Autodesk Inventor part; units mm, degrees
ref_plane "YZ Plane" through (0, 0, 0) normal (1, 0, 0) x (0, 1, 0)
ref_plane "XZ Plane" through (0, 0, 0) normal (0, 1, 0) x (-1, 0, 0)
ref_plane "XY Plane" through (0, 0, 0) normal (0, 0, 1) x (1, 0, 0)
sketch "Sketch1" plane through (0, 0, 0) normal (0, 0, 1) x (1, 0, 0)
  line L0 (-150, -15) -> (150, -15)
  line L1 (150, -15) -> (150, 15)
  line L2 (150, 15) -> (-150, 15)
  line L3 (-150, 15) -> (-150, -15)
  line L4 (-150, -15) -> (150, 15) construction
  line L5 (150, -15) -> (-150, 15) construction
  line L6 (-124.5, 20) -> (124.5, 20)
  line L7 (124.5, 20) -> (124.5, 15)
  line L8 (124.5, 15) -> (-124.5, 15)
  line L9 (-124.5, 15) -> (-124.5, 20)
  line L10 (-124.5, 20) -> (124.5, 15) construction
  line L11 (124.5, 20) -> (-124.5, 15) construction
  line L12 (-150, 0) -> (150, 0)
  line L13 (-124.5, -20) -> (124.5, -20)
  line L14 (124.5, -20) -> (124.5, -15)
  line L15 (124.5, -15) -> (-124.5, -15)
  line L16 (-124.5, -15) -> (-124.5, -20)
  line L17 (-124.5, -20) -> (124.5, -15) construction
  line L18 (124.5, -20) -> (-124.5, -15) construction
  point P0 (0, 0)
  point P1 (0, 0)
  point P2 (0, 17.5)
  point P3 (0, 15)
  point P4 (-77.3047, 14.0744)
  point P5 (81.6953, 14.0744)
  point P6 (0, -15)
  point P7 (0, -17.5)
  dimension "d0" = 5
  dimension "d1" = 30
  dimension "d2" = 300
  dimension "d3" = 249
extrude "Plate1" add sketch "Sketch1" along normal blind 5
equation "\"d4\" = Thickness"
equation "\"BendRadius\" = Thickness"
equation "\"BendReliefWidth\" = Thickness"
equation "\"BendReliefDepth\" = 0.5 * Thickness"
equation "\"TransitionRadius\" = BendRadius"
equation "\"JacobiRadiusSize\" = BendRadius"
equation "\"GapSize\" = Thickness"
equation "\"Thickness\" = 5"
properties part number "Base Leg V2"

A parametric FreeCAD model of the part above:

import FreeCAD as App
import Part
import Sketcher
Q = App.Units.Quantity


def add_polygon(sketch, points):
    """Adds a closed chain of lines whose ends are joined by coincident constraints."""
    first, n = sketch.GeometryCount, len(points)
    for a, b in zip(points, points[1:] + points[:1]):
        sketch.addGeometry(Part.LineSegment(App.Vector(*a, 0), App.Vector(*b, 0)), False)
    for i in range(n):
        sketch.addConstraint(Sketcher.Constraint("Coincident", first + i, 2, first + (i + 1) % n, 1))

doc = App.newDocument("Part")
params = doc.addObject("Spreadsheet::Sheet", "Params")
for row, (alias, value) in enumerate([
    ("sketch1_width", "249 mm"),
    ("sketch1_height", "5 mm"),
    ("sketch1_height2", "30 mm"),
    ("sketch1_width2", "25.5 mm"),
    ("pad1_length", "5 mm"),
], start=1):
    params.set(f"A{row}", alias)
    params.set(f"B{row}", "=" + value)
    params.setAlias(f"B{row}", alias)

body = doc.addObject("PartDesign::Body", "Body")

# Sketch on XY plane
sketch1 = body.newObject("Sketcher::SketchObject", "Sketch")
sketch1.AttachmentSupport = (doc.getObject("XY_Plane"), [""])
sketch1.MapMode = "FlatFace"
add_polygon(sketch1, [(-150, -15), (-124, -15), (-124, -20), (124, -20), (124, -15), (150, -15), (150, 15), (124, 15), (124, 20), (-124, 20), (-124, 15), (-150, 15)])  # lines 0-11
sketch1.addConstraint(Sketcher.Constraint("Horizontal", 0))
sketch1.addConstraint(Sketcher.Constraint("Vertical", 1))
sketch1.addConstraint(Sketcher.Constraint("Horizontal", 2))
sketch1.addConstraint(Sketcher.Constraint("Vertical", 3))
sketch1.addConstraint(Sketcher.Constraint("Horizontal", 4))
sketch1.addConstraint(Sketcher.Constraint("Vertical", 5))
sketch1.addConstraint(Sketcher.Constraint("Horizontal", 6))
sketch1.addConstraint(Sketcher.Constraint("Vertical", 7))
sketch1.addConstraint(Sketcher.Constraint("Horizontal", 8))
sketch1.addConstraint(Sketcher.Constraint("Vertical", 9))
sketch1.addConstraint(Sketcher.Constraint("Horizontal", 10))
sketch1.addConstraint(Sketcher.Constraint("Vertical", 11))
sketch1.addConstraint(Sketcher.Constraint("Symmetric", 0, 2, 6, 2, -1, 1))
sketch1.addConstraint(Sketcher.Constraint("Symmetric", 2, 2, 8, 2, -1, 1))
sketch1.addConstraint(Sketcher.Constraint("Symmetric", 4, 2, 10, 2, -1, 1))
sketch1.addConstraint(Sketcher.Constraint("Symmetric", 0, 2, 3, 2, -2))
sketch1.addConstraint(Sketcher.Constraint("DistanceX", 2, 1, 2, 2, Q("249 mm")))
sketch1.addConstraint(Sketcher.Constraint("DistanceY", 1, 2, 1, 1, Q("5 mm")))
sketch1.addConstraint(Sketcher.Constraint("DistanceY", 5, 1, 5, 2, Q("30 mm")))
sketch1.addConstraint(Sketcher.Constraint("DistanceX", 0, 1, 0, 2, Q("25.5 mm")))
sketch1.setExpression("Constraints[28]", "Params.sketch1_width")
sketch1.setExpression("Constraints[29]", "Params.sketch1_height")
sketch1.setExpression("Constraints[30]", "Params.sketch1_height2")
sketch1.setExpression("Constraints[31]", "Params.sketch1_width2")
pad1 = body.newObject("PartDesign::Pad", "Pad")
pad1.Profile = sketch1
pad1.setExpression("Length", "Params.pad1_length")

doc.recompute()
